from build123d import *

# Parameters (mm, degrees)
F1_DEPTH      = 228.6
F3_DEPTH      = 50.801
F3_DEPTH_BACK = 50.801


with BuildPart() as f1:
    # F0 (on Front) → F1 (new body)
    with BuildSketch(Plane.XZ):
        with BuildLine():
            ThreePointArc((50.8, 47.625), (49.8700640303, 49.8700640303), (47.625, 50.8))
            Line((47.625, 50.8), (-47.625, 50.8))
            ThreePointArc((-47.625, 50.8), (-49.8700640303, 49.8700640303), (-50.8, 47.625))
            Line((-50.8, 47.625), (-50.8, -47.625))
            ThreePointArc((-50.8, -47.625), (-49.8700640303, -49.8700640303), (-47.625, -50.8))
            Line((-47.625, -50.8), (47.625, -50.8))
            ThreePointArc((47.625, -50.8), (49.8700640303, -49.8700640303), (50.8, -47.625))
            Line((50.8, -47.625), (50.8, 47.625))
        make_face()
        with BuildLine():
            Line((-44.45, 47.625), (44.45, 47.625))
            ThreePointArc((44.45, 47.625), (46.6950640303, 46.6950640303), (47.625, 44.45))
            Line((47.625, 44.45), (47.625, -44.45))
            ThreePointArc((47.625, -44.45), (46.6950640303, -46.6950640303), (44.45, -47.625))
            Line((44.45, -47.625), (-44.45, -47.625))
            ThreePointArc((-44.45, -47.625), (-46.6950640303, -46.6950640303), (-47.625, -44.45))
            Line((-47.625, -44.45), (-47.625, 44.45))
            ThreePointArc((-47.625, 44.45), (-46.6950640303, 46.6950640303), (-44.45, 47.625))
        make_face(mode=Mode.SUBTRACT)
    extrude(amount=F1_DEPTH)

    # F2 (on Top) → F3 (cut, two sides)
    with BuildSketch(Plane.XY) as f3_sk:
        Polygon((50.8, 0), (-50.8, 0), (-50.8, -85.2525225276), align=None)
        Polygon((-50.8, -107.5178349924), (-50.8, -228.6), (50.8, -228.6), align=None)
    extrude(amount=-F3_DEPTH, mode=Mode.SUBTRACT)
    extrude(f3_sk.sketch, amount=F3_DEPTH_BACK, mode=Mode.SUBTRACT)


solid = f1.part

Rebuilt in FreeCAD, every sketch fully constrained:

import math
import FreeCAD as App
import Part
import Sketcher
Q = App.Units.Quantity

doc = App.newDocument("Part")
body = doc.addObject("PartDesign::Body", "Body")

sketch1 = body.newObject("Sketcher::SketchObject", "Sketch")
sketch1.AttachmentSupport = (doc.getObject("XZ_Plane"), [""])
sketch1.MapMode = "FlatFace"
sketch1.addGeometry([
    Part.ArcOfCircle(Part.Circle(App.Vector(47.6, 47.6, 0), App.Vector(0, 0, 1), 3.2), math.radians(0), math.radians(90)),
    Part.LineSegment(App.Vector(47.6, 50.8, 0), App.Vector(-47.6, 50.8, 0)),
    Part.ArcOfCircle(Part.Circle(App.Vector(-47.6, 47.6, 0), App.Vector(0, 0, 1), 3.2), math.radians(90), math.radians(180)),
    Part.LineSegment(App.Vector(-50.8, 47.6, 0), App.Vector(-50.8, -47.6, 0)),
    Part.ArcOfCircle(Part.Circle(App.Vector(-47.6, -47.6, 0), App.Vector(0, 0, 1), 3.2), math.radians(180), math.radians(270)),
    Part.LineSegment(App.Vector(-47.6, -50.8, 0), App.Vector(47.6, -50.8, 0)),
    Part.ArcOfCircle(Part.Circle(App.Vector(47.6, -47.6, 0), App.Vector(0, 0, 1), 3.2), math.radians(-90), math.radians(0)),
    Part.LineSegment(App.Vector(50.8, -47.6, 0), App.Vector(50.8, 47.6, 0)),
    Part.ArcOfCircle(Part.Circle(App.Vector(-44.5, 44.5, 0), App.Vector(0, 0, 1), 3.2), math.radians(90), math.radians(180)),
    Part.LineSegment(App.Vector(-44.5, 47.6, 0), App.Vector(44.5, 47.6, 0)),
    Part.ArcOfCircle(Part.Circle(App.Vector(44.5, 44.5, 0), App.Vector(0, 0, 1), 3.2), math.radians(0), math.radians(90)),
    Part.LineSegment(App.Vector(47.6, 44.5, 0), App.Vector(47.6, -44.5, 0)),
    Part.ArcOfCircle(Part.Circle(App.Vector(44.5, -44.5, 0), App.Vector(0, 0, 1), 3.2), math.radians(-90), math.radians(0)),
    Part.LineSegment(App.Vector(44.5, -47.6, 0), App.Vector(-44.5, -47.6, 0)),
    Part.ArcOfCircle(Part.Circle(App.Vector(-44.5, -44.5, 0), App.Vector(0, 0, 1), 3.2), math.radians(180), math.radians(270)),
    Part.LineSegment(App.Vector(-47.6, -44.5, 0), App.Vector(-47.6, 44.5, 0)),
], False)
sketch1.addConstraint([
    Sketcher.Constraint("Tangent", 0, 2, 1, 1),
    Sketcher.Constraint("Tangent", 1, 2, 2, 1),
    Sketcher.Constraint("Tangent", 2, 2, 3, 1),
    Sketcher.Constraint("Tangent", 3, 2, 4, 1),
    Sketcher.Constraint("Tangent", 4, 2, 5, 1),
    Sketcher.Constraint("Tangent", 5, 2, 6, 1),
    Sketcher.Constraint("Tangent", 6, 2, 7, 1),
    Sketcher.Constraint("Tangent", 7, 2, 0, 1),
    Sketcher.Constraint("Tangent", 8, 1, 9, 1),
    Sketcher.Constraint("Tangent", 9, 2, 10, 2),
    Sketcher.Constraint("Tangent", 10, 1, 11, 1),
    Sketcher.Constraint("Tangent", 11, 2, 12, 2),
    Sketcher.Constraint("Tangent", 12, 1, 13, 1),
    Sketcher.Constraint("Tangent", 13, 2, 14, 2),
    Sketcher.Constraint("Tangent", 14, 1, 15, 1),
    Sketcher.Constraint("Tangent", 15, 2, 8, 2),
    Sketcher.Constraint("Horizontal", 1),
    Sketcher.Constraint("Vertical", 3),
    Sketcher.Constraint("Horizontal", 5),
    Sketcher.Constraint("Vertical", 7),
    Sketcher.Constraint("Horizontal", 9),
    Sketcher.Constraint("Vertical", 11),
    Sketcher.Constraint("Horizontal", 13),
    Sketcher.Constraint("Vertical", 15),
    Sketcher.Constraint("Equal", 0, 2),
    Sketcher.Constraint("Equal", 2, 4),
    Sketcher.Constraint("Equal", 4, 6),
    Sketcher.Constraint("Equal", 6, 8),
    Sketcher.Constraint("Equal", 8, 10),
    Sketcher.Constraint("Equal", 10, 12),
    Sketcher.Constraint("Equal", 12, 14),
    Sketcher.Constraint("Symmetric", 0, 3, 4, 3, -1, 1),
    Sketcher.Constraint("Symmetric", 8, 3, 12, 3, -1, 1),
    Sketcher.Constraint("Horizontal", 7, 2, 8, 1),
    Sketcher.Constraint("Vertical", 5, 2, 10, 1),
    Sketcher.Constraint("Equal", 5, 3),
    Sketcher.Constraint("DistanceX", 9, 1, 9, 2, Q("3.5 in")),
    Sketcher.Constraint("DistanceY", -1, 1, 0, 2, Q("2 in")),
])
pad1 = body.newObject("PartDesign::Pad", "Pad")
pad1.Profile = sketch1
pad1.Length = Q("9 in")

sketch2 = body.newObject("Sketcher::SketchObject", "Sketch001")
sketch2.AttachmentSupport = (doc.getObject("XY_Plane"), [""])
sketch2.MapMode = "FlatFace"
sketch2.addGeometry([
    Part.LineSegment(App.Vector(51, 0, 0), App.Vector(-51, 0, 0)),
    Part.LineSegment(App.Vector(-51, 0, 0), App.Vector(-51, -85, 0)),
    Part.LineSegment(App.Vector(-51, -85, 0), App.Vector(51, 0, 0)),
    Part.LineSegment(App.Vector(-51, -108, 0), App.Vector(-51, -229, 0)),
    Part.LineSegment(App.Vector(-51, -229, 0), App.Vector(51, -229, 0)),
    Part.LineSegment(App.Vector(51, -229, 0), App.Vector(-51, -108, 0)),
], False)
sketch2.addConstraint([
    Sketcher.Constraint("Coincident", 0, 2, 1, 1),
    Sketcher.Constraint("Coincident", 1, 2, 2, 1),
    Sketcher.Constraint("Coincident", 2, 2, 0, 1),
    Sketcher.Constraint("Coincident", 3, 2, 4, 1),
    Sketcher.Constraint("Coincident", 4, 2, 5, 1),
    Sketcher.Constraint("Coincident", 5, 2, 3, 1),
    Sketcher.Constraint("Horizontal", 0),
    Sketcher.Constraint("Vertical", 1),
    Sketcher.Constraint("Vertical", 3),
    Sketcher.Constraint("Horizontal", 4),
    Sketcher.Constraint("Symmetric", 0, 2, 2, 2, -1, 1),
    Sketcher.Constraint("Perpendicular", 2, 5),
    Sketcher.Constraint("Vertical", 1, 2, 3, 2),
    Sketcher.Constraint("Vertical", 2, 2, 4, 2),
    Sketcher.Constraint("DistanceX", 0, 2, 0, 1, Q("4 in")),
    Sketcher.Constraint("DistanceY", 3, 2, -1, 1, Q("9 in")),
    Sketcher.Constraint("Angle", 2, Q("40 deg")),
])
pocket1 = body.newObject("PartDesign::Pocket", "Pocket")
pocket1.Profile = sketch2
pocket1.Type = "ThroughAll"
pocket1.Midplane = True

doc.recompute()
